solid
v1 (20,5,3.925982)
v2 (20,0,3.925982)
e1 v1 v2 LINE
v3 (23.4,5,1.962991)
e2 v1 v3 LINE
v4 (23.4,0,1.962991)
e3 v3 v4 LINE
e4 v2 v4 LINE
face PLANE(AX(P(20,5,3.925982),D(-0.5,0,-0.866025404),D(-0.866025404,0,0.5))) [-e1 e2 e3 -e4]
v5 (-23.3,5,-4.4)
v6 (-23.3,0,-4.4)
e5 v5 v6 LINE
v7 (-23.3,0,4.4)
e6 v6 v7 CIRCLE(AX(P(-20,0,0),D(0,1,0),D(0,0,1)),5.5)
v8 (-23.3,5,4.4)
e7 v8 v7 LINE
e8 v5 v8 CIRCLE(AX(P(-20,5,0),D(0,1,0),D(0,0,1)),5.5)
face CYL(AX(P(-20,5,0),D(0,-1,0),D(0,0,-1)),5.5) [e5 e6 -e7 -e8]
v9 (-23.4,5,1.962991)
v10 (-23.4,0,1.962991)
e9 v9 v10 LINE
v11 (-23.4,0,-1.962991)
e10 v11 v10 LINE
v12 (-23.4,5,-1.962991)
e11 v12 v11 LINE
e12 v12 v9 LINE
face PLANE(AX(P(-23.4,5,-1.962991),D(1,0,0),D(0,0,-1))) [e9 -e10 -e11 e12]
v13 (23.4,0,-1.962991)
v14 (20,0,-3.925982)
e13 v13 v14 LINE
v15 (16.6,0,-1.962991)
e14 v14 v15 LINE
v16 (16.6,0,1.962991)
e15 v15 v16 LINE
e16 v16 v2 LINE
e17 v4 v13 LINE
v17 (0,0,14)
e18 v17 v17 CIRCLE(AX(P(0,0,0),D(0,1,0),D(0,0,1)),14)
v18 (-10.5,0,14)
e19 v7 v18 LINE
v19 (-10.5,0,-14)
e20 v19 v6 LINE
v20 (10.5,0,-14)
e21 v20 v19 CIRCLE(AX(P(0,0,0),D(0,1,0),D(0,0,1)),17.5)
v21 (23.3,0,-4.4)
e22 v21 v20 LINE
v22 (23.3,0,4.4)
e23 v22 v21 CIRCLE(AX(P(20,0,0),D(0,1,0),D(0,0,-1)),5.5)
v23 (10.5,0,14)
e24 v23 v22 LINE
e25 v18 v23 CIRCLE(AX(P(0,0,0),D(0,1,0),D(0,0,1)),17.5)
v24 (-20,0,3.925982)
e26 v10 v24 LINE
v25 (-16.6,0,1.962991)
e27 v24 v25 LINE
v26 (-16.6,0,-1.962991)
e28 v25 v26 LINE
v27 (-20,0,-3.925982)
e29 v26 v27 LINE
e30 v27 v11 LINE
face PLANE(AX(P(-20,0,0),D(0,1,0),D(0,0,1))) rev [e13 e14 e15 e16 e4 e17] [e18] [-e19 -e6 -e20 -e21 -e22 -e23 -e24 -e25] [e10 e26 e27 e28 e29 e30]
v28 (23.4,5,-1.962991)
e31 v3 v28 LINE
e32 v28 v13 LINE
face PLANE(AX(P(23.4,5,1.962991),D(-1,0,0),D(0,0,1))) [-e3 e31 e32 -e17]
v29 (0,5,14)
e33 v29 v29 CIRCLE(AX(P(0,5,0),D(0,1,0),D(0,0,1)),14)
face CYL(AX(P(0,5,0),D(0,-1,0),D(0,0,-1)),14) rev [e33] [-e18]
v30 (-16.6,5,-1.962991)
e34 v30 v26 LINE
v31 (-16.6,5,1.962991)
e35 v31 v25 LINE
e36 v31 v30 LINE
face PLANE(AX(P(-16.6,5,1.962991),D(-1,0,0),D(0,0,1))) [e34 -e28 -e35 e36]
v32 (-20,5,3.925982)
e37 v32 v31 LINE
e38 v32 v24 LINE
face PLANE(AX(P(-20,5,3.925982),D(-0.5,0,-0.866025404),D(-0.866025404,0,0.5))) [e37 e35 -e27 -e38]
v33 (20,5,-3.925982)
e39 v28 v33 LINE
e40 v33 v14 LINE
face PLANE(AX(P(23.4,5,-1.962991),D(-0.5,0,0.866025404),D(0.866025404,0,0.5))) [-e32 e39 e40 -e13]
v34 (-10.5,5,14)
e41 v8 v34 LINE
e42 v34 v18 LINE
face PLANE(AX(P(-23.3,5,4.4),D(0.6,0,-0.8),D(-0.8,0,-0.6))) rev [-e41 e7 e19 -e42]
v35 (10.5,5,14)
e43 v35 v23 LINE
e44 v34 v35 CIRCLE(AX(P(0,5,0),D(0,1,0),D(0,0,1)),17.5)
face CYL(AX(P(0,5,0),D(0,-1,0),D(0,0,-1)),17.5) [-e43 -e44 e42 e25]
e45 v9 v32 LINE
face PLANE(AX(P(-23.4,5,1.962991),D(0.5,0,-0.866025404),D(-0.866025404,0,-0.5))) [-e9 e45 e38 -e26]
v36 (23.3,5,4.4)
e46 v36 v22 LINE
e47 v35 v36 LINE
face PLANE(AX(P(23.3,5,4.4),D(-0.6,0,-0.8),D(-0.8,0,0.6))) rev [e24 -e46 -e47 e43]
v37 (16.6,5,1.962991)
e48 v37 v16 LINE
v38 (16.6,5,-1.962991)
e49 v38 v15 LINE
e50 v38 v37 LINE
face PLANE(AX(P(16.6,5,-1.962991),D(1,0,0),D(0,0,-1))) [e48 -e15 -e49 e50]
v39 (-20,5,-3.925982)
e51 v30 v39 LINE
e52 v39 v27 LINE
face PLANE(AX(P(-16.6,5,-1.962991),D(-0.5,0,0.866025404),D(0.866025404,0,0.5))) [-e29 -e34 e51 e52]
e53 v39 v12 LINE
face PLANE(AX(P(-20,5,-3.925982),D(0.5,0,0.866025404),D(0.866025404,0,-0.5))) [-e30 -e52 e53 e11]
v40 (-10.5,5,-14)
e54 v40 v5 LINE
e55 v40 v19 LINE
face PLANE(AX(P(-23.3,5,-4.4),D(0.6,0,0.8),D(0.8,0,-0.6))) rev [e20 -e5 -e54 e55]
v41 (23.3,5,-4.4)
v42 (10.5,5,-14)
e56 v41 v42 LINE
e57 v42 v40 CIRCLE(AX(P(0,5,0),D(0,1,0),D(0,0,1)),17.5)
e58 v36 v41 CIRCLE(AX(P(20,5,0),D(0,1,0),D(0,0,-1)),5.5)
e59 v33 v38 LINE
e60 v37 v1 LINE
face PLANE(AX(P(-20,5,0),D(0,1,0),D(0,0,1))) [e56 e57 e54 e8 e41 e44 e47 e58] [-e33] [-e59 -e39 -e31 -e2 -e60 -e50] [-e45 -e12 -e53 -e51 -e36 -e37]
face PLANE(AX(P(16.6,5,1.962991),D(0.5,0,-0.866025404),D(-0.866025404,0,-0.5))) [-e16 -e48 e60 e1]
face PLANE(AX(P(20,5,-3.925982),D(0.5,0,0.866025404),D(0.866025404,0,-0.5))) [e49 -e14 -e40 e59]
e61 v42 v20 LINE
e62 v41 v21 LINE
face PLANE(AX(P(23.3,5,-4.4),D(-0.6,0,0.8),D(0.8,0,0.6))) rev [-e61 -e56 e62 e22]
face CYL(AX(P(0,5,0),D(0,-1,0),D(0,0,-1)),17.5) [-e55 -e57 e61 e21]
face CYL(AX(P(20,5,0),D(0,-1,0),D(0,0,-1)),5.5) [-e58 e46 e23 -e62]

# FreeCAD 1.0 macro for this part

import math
import FreeCAD as App
import Part
import Sketcher
from FreeCAD import Vector
Q = App.Units.Quantity


def add_polygon(sketch, points):
    """Adds a closed chain of lines whose ends are joined by coincident constraints."""
    first, n = sketch.GeometryCount, len(points)
    for a, b in zip(points, points[1:] + points[:1]):
        sketch.addGeometry(Part.LineSegment(App.Vector(*a, 0), App.Vector(*b, 0)), False)
    for i in range(n):
        sketch.addConstraint(Sketcher.Constraint("Coincident", first + i, 2, first + (i + 1) % n, 1))

doc = App.newDocument("Part")
params = doc.addObject("Spreadsheet::Sheet", "Params")
for row, (alias, value) in enumerate([
    ("sketch1_diameter", "28 mm"),
    ("sketch1_radius", "5.5 mm"),
    ("sketch1_radius2", "17.5 mm"),
    ("sketch1_length", "16 mm"),
    ("pad1_length", "5 mm"),
], start=1):
    params.set(f"A{row}", alias)
    params.set(f"B{row}", "=" + value)
    params.setAlias(f"B{row}", alias)

body = doc.addObject("PartDesign::Body", "Body")

# Sketch on XZ plane
sketch1 = body.newObject("Sketcher::SketchObject", "Sketch")
sketch1.AttachmentSupport = (doc.getObject("XZ_Plane"), [""])
sketch1.MapMode = "FlatFace"
sketch1.addGeometry(Part.LineSegment(Vector(-10.5, -14, 0), Vector(-23.3, -4.4, 0)), False)  # 0
sketch1.addGeometry(Part.ArcOfCircle(Part.Circle(Vector(-20, 0, 0), Vector(0, 0, 1), 5.5), math.radians(127), math.radians(233)), False)  # 1
sketch1.addGeometry(Part.LineSegment(Vector(-23.3, 4.4, 0), Vector(-10.5, 14, 0)), False)  # 2
sketch1.addGeometry(Part.ArcOfCircle(Part.Circle(Vector(0, 0, 0), Vector(0, 0, 1), 17.5), math.radians(53), math.radians(127)), False)  # 3
sketch1.addGeometry(Part.LineSegment(Vector(10.5, 14, 0), Vector(23.3, 4.4, 0)), False)  # 4
sketch1.addGeometry(Part.ArcOfCircle(Part.Circle(Vector(20, 0, 0), Vector(0, 0, 1), 5.5), math.radians(-53), math.radians(53)), False)  # 5
sketch1.addGeometry(Part.LineSegment(Vector(23.3, -4.4, 0), Vector(10.5, -14, 0)), False)  # 6
sketch1.addGeometry(Part.ArcOfCircle(Part.Circle(Vector(0, 0, 0), Vector(0, 0, 1), 17.5), math.radians(-127), math.radians(-53)), False)  # 7
add_polygon(sketch1, [(20, 3.9), (16.6, 2), (16.6, -2), (20, -3.9), (23.4, -2), (23.4, 2)])  # lines 8-13
sketch1.addGeometry(Part.Circle(Vector(0, 0, 0), Vector(0, 0, 1), 14), False)  # 14
add_polygon(sketch1, [(-20, -3.9), (-16.6, -2), (-16.6, 2), (-20, 3.9), (-23.4, 2), (-23.4, -2)])  # lines 15-20
sketch1.addConstraint(Sketcher.Constraint("Tangent", 0, 2, 1, 2))
sketch1.addConstraint(Sketcher.Constraint("Tangent", 1, 1, 2, 1))
sketch1.addConstraint(Sketcher.Constraint("Tangent", 2, 2, 3, 2))
sketch1.addConstraint(Sketcher.Constraint("Tangent", 3, 1, 4, 1))
sketch1.addConstraint(Sketcher.Constraint("Tangent", 4, 2, 5, 2))
sketch1.addConstraint(Sketcher.Constraint("Tangent", 5, 1, 6, 1))
sketch1.addConstraint(Sketcher.Constraint("Tangent", 6, 2, 7, 2))
sketch1.addConstraint(Sketcher.Constraint("Tangent", 7, 1, 0, 1))
sketch1.addConstraint(Sketcher.Constraint("Vertical", 9))
sketch1.addConstraint(Sketcher.Constraint("Vertical", 12))
sketch1.addConstraint(Sketcher.Constraint("Vertical", 16))
sketch1.addConstraint(Sketcher.Constraint("Vertical", 19))
sketch1.addConstraint(Sketcher.Constraint("Coincident", 3, 3, -1, 1))
sketch1.addConstraint(Sketcher.Constraint("Coincident", 7, 3, -1, 1))
sketch1.addConstraint(Sketcher.Constraint("Coincident", 14, 3, -1, 1))
sketch1.addConstraint(Sketcher.Constraint("Equal", 1, 5))
sketch1.addConstraint(Sketcher.Constraint("Equal", 3, 7))
sketch1.addConstraint(Sketcher.Constraint("Symmetric", 1, 3, 5, 3, -1, 1))
sketch1.addConstraint(Sketcher.Constraint("Symmetric", 8, 2, 15, 2, -1, 1))
sketch1.addConstraint(Sketcher.Constraint("Symmetric", 10, 2, 17, 2, -1, 1))
sketch1.addConstraint(Sketcher.Constraint("Symmetric", 11, 2, 18, 2, -1, 1))
sketch1.addConstraint(Sketcher.Constraint("Symmetric", 13, 2, 20, 2, -1, 1))
sketch1.addConstraint(Sketcher.Constraint("Symmetric", 13, 2, 17, 2, -2))
sketch1.addConstraint(Sketcher.Constraint("PointOnObject", 1, 3, -1))
sketch1.addConstraint(Sketcher.Constraint("Parallel", 8, 11))
sketch1.addConstraint(Sketcher.Constraint("Parallel", 10, 13))
sketch1.addConstraint(Sketcher.Constraint("Parallel", 13, 17))
sketch1.addConstraint(Sketcher.Constraint("Parallel", 17, 20))
sketch1.addConstraint(Sketcher.Constraint("Horizontal", 9, 2, 11, 2))
sketch1.addConstraint(Sketcher.Constraint("Horizontal", 8, 2, 12, 2))
sketch1.addConstraint(Sketcher.Constraint("Vertical", 5, 3, 10, 2))
sketch1.addConstraint(Sketcher.Constraint("Diameter", 14, 28.0))
sketch1.addConstraint(Sketcher.Constraint("Radius", 1, 5.5))
sketch1.addConstraint(Sketcher.Constraint("Radius", 3, 17.5))
sketch1.addConstraint(Sketcher.Constraint("Angle", 8, Q("-150 deg")))
sketch1.addConstraint(Sketcher.Constraint("Distance", 0, 16.0))
sketch1.addConstraint(Sketcher.Constraint("DistanceX", -1, 1, 8, 2, 16.6))
sketch1.addConstraint(Sketcher.Constraint("DistanceY", 9, 2, 9, 1, 3.925982))
sketch1.setExpression("Constraints[43]", "Params.sketch1_diameter")
sketch1.setExpression("Constraints[44]", "Params.sketch1_radius")
sketch1.setExpression("Constraints[45]", "Params.sketch1_radius2")
sketch1.setExpression("Constraints[47]", "Params.sketch1_length")
pad1 = body.newObject("PartDesign::Pad", "Pad")
pad1.Profile = sketch1
pad1.setExpression("Length", "Params.pad1_length")
pad1.Reversed = True

doc.recompute()
